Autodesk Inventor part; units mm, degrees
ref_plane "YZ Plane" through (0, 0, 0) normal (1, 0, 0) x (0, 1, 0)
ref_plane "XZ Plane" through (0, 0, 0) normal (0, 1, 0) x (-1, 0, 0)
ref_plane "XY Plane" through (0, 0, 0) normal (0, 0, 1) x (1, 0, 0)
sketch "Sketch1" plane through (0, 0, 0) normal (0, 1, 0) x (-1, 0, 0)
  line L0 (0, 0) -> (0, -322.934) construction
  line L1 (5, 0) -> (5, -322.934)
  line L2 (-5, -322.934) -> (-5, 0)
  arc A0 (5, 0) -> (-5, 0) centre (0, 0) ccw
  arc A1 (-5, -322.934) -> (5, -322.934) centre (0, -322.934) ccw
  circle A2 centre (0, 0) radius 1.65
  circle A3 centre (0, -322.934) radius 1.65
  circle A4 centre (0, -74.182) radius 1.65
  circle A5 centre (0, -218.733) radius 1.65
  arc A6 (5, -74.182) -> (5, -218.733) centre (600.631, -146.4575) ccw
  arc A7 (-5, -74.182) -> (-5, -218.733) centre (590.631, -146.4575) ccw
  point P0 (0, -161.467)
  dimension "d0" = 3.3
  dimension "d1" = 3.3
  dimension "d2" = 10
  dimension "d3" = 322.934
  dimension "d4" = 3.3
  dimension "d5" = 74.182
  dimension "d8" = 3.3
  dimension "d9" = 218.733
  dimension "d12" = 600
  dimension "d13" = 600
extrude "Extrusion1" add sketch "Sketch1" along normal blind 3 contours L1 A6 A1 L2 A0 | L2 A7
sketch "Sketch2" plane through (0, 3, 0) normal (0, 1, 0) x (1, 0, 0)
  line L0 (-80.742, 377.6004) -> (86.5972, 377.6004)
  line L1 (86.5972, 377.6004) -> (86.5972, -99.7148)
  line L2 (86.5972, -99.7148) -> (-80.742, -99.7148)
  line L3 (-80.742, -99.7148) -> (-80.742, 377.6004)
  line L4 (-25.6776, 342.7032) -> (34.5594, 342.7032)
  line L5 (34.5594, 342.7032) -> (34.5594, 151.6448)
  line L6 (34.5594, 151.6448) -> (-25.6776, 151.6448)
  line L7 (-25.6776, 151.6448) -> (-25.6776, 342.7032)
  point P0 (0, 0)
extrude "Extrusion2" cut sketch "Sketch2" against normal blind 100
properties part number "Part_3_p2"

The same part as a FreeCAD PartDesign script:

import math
import FreeCAD as App
import Part
import Sketcher
from FreeCAD import Vector

doc = App.newDocument("Part")
params = doc.addObject("Spreadsheet::Sheet", "Params")
for row, (alias, value) in enumerate([
    ("sketch1_radius", "5 mm"),
    ("sketch1_radius2", "600 mm"),
    ("sketch1_diameter", "3.3 mm"),
    ("pad1_length", "3 mm"),
    ("pocket1_length", "100 mm"),
], start=1):
    params.set(f"A{row}", alias)
    params.set(f"B{row}", "=" + value)
    params.setAlias(f"B{row}", alias)

body = doc.addObject("PartDesign::Body", "Body")

sketch1 = body.newObject("Sketcher::SketchObject", "Sketch")
sketch1.AttachmentSupport = (doc.getObject("XZ_Plane"), [""])
sketch1.MapMode = "FlatFace"
sketch1.addGeometry([
    Part.LineSegment(Vector(-5, -74.2, 0), Vector(-5, 0, 0)),
    Part.ArcOfCircle(Part.Circle(Vector(0, 0, 0), Vector(0, 0, 1), 5), math.radians(0), math.radians(180)),
    Part.LineSegment(Vector(5, 0, 0), Vector(5, -74.2, 0)),
    Part.ArcOfCircle(Part.Circle(Vector(-590.6, -146.5, 0), Vector(0, 0, 1), 600), math.radians(-6.92), math.radians(6.92)),
    Part.LineSegment(Vector(5, -218.7, 0), Vector(5, -322.9, 0)),
    Part.ArcOfCircle(Part.Circle(Vector(0, -322.9, 0), Vector(0, 0, 1), 5), math.radians(180), math.radians(360)),
    Part.LineSegment(Vector(-5, -322.9, 0), Vector(-5, -218.7, 0)),
    Part.ArcOfCircle(Part.Circle(Vector(-600.6, -146.5, 0), Vector(0, 0, 1), 600), math.radians(-6.92), math.radians(6.92)),
    Part.Circle(Vector(0, -322.9, 0), Vector(0, 0, 1), 1.6),
    Part.Circle(Vector(0, -218.7, 0), Vector(0, 0, 1), 1.6),
    Part.Circle(Vector(0, -74.2, 0), Vector(0, 0, 1), 1.6),
    Part.Circle(Vector(0, 0, 0), Vector(0, 0, 1), 1.6),
], False)
sketch1.addConstraint([
    Sketcher.Constraint("Tangent", 0, 2, 1, 2),
    Sketcher.Constraint("Tangent", 1, 1, 2, 1),
    Sketcher.Constraint("Coincident", 2, 2, 3, 2),
    Sketcher.Constraint("Coincident", 3, 1, 4, 1),
    Sketcher.Constraint("Tangent", 4, 2, 5, 2),
    Sketcher.Constraint("Tangent", 5, 1, 6, 1),
    Sketcher.Constraint("Coincident", 6, 2, 7, 1),
    Sketcher.Constraint("Coincident", 7, 2, 0, 1),
    Sketcher.Constraint("Vertical", 0),
    Sketcher.Constraint("Vertical", 2),
    Sketcher.Constraint("Vertical", 4),
    Sketcher.Constraint("Vertical", 6),
    Sketcher.Constraint("Coincident", 1, 3, -1, 1),
    Sketcher.Constraint("Coincident", 11, 3, -1, 1),
    Sketcher.Constraint("Coincident", 8, 3, 5, 3),
    Sketcher.Constraint("Equal", 1, 5),
    Sketcher.Constraint("Equal", 3, 7),
    Sketcher.Constraint("Equal", 8, 9),
    Sketcher.Constraint("Equal", 9, 10),
    Sketcher.Constraint("Equal", 10, 11),
    Sketcher.Constraint("Symmetric", 3, 1, 6, 2, -2),
    Sketcher.Constraint("PointOnObject", 9, 3, -2),
    Sketcher.Constraint("PointOnObject", 10, 3, -2),
    Sketcher.Constraint("Horizontal", 3, 3, 7, 3),
    Sketcher.Constraint("Horizontal", 10, 3, 2, 2),
    Sketcher.Constraint("Radius", 1, 5.0),
    Sketcher.Constraint("Radius", 3, 600.0),
    Sketcher.Constraint("Diameter", 8, 3.3),
    Sketcher.Constraint("DistanceY", 0, 1, 0, 2, 74.182),
    Sketcher.Constraint("DistanceY", 5, 3, -1, 1, 322.934),
    Sketcher.Constraint("DistanceY", 9, 3, -1, 1, 218.733),
    Sketcher.Constraint("DistanceY", 6, 2, -1, 1, 218.733),
])
sketch1.setExpression("Constraints[25]", "Params.sketch1_radius")
sketch1.setExpression("Constraints[26]", "Params.sketch1_radius2")
sketch1.setExpression("Constraints[27]", "Params.sketch1_diameter")
pad1 = body.newObject("PartDesign::Pad", "Pad")
pad1.Profile = sketch1
pad1.setExpression("Length", "Params.pad1_length")
pad1.Reversed = True

sketch2 = body.newObject("Sketcher::SketchObject", "Sketch001")
sketch2.AttachmentSupport = (doc.getObject("XZ_Plane"), [""])
sketch2.MapMode = "FlatFace"
sketch2.AttachmentOffset = App.Placement(Vector(0, 0, -3), App.Rotation())
sketch2.addGeometry([
    Part.LineSegment(Vector(87, -378, 0), Vector(-81, -378, 0)),
    Part.LineSegment(Vector(-81, -378, 0), Vector(-81, 100, 0)),
    Part.LineSegment(Vector(-81, 100, 0), Vector(87, 100, 0)),
    Part.LineSegment(Vector(87, 100, 0), Vector(87, -378, 0)),
    Part.LineSegment(Vector(-26, -152, 0), Vector(-26, -343, 0)),
    Part.LineSegment(Vector(-26, -343, 0), Vector(35, -343, 0)),
    Part.LineSegment(Vector(35, -343, 0), Vector(35, -152, 0)),
    Part.LineSegment(Vector(35, -152, 0), Vector(-26, -152, 0)),
], False)
sketch2.addConstraint([
    Sketcher.Constraint("Coincident", 0, 2, 1, 1),
    Sketcher.Constraint("Coincident", 1, 2, 2, 1),
    Sketcher.Constraint("Coincident", 2, 2, 3, 1),
    Sketcher.Constraint("Coincident", 3, 2, 0, 1),
    Sketcher.Constraint("Coincident", 4, 2, 5, 1),
    Sketcher.Constraint("Coincident", 5, 2, 6, 1),
    Sketcher.Constraint("Coincident", 6, 2, 7, 1),
    Sketcher.Constraint("Coincident", 7, 2, 4, 1),
    Sketcher.Constraint("Horizontal", 0),
    Sketcher.Constraint("Vertical", 1),
    Sketcher.Constraint("Horizontal", 2),
    Sketcher.Constraint("Vertical", 3),
    Sketcher.Constraint("Vertical", 4),
    Sketcher.Constraint("Horizontal", 5),
    Sketcher.Constraint("Vertical", 6),
    Sketcher.Constraint("Horizontal", 7),
    Sketcher.Constraint("DistanceX", 5, 1, 5, 2, 60.237),
    Sketcher.Constraint("DistanceX", 0, 2, 0, 1, 167.3392),
    Sketcher.Constraint("DistanceY", 1, 1, 1, 2, 477.3152),
    Sketcher.Constraint("DistanceY", 4, 2, 4, 1, 191.0584),
    Sketcher.Constraint("DistanceX", 0, 2, -1, 1, 80.742),
    Sketcher.Constraint("DistanceY", 4, 2, 1, 2, 442.418),
    Sketcher.Constraint("DistanceY", 0, 2, -1, 1, 377.6004),
    Sketcher.Constraint("DistanceX", 4, 2, -1, 1, 25.6776),
])
pocket1 = body.newObject("PartDesign::Pocket", "Pocket")
pocket1.Profile = sketch2
pocket1.setExpression("Length", "Params.pocket1_length")
pocket1.Reversed = True

doc.recompute()
